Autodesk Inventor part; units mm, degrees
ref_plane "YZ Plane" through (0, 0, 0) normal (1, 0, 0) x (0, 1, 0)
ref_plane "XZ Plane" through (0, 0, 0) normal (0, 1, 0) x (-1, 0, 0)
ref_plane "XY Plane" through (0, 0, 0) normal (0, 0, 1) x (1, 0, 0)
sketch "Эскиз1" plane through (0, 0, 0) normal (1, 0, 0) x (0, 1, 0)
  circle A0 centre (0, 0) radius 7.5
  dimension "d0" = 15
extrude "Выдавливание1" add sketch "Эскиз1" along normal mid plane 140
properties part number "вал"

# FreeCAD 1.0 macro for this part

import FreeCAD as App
import Part
import Sketcher
from FreeCAD import Vector
Q = App.Units.Quantity

doc = App.newDocument("Part")
body = doc.addObject("PartDesign::Body", "Body")

# Sketch on YZ plane
sketch1 = body.newObject("Sketcher::SketchObject", "Sketch")
sketch1.AttachmentSupport = (doc.getObject("YZ_Plane"), [""])
sketch1.MapMode = "FlatFace"
sketch1.addGeometry(Part.Circle(Vector(0, 0, 0), Vector(0, 0, 1), 8), False)
sketch1.addConstraint(Sketcher.Constraint("Coincident", 0, 3, -1, 1))
sketch1.addConstraint(Sketcher.Constraint("Diameter", 0, Q("15 mm")))
pad1 = body.newObject("PartDesign::Pad", "Pad")
pad1.Profile = sketch1
pad1.Length = 140
pad1.Midplane = True

doc.recompute()
